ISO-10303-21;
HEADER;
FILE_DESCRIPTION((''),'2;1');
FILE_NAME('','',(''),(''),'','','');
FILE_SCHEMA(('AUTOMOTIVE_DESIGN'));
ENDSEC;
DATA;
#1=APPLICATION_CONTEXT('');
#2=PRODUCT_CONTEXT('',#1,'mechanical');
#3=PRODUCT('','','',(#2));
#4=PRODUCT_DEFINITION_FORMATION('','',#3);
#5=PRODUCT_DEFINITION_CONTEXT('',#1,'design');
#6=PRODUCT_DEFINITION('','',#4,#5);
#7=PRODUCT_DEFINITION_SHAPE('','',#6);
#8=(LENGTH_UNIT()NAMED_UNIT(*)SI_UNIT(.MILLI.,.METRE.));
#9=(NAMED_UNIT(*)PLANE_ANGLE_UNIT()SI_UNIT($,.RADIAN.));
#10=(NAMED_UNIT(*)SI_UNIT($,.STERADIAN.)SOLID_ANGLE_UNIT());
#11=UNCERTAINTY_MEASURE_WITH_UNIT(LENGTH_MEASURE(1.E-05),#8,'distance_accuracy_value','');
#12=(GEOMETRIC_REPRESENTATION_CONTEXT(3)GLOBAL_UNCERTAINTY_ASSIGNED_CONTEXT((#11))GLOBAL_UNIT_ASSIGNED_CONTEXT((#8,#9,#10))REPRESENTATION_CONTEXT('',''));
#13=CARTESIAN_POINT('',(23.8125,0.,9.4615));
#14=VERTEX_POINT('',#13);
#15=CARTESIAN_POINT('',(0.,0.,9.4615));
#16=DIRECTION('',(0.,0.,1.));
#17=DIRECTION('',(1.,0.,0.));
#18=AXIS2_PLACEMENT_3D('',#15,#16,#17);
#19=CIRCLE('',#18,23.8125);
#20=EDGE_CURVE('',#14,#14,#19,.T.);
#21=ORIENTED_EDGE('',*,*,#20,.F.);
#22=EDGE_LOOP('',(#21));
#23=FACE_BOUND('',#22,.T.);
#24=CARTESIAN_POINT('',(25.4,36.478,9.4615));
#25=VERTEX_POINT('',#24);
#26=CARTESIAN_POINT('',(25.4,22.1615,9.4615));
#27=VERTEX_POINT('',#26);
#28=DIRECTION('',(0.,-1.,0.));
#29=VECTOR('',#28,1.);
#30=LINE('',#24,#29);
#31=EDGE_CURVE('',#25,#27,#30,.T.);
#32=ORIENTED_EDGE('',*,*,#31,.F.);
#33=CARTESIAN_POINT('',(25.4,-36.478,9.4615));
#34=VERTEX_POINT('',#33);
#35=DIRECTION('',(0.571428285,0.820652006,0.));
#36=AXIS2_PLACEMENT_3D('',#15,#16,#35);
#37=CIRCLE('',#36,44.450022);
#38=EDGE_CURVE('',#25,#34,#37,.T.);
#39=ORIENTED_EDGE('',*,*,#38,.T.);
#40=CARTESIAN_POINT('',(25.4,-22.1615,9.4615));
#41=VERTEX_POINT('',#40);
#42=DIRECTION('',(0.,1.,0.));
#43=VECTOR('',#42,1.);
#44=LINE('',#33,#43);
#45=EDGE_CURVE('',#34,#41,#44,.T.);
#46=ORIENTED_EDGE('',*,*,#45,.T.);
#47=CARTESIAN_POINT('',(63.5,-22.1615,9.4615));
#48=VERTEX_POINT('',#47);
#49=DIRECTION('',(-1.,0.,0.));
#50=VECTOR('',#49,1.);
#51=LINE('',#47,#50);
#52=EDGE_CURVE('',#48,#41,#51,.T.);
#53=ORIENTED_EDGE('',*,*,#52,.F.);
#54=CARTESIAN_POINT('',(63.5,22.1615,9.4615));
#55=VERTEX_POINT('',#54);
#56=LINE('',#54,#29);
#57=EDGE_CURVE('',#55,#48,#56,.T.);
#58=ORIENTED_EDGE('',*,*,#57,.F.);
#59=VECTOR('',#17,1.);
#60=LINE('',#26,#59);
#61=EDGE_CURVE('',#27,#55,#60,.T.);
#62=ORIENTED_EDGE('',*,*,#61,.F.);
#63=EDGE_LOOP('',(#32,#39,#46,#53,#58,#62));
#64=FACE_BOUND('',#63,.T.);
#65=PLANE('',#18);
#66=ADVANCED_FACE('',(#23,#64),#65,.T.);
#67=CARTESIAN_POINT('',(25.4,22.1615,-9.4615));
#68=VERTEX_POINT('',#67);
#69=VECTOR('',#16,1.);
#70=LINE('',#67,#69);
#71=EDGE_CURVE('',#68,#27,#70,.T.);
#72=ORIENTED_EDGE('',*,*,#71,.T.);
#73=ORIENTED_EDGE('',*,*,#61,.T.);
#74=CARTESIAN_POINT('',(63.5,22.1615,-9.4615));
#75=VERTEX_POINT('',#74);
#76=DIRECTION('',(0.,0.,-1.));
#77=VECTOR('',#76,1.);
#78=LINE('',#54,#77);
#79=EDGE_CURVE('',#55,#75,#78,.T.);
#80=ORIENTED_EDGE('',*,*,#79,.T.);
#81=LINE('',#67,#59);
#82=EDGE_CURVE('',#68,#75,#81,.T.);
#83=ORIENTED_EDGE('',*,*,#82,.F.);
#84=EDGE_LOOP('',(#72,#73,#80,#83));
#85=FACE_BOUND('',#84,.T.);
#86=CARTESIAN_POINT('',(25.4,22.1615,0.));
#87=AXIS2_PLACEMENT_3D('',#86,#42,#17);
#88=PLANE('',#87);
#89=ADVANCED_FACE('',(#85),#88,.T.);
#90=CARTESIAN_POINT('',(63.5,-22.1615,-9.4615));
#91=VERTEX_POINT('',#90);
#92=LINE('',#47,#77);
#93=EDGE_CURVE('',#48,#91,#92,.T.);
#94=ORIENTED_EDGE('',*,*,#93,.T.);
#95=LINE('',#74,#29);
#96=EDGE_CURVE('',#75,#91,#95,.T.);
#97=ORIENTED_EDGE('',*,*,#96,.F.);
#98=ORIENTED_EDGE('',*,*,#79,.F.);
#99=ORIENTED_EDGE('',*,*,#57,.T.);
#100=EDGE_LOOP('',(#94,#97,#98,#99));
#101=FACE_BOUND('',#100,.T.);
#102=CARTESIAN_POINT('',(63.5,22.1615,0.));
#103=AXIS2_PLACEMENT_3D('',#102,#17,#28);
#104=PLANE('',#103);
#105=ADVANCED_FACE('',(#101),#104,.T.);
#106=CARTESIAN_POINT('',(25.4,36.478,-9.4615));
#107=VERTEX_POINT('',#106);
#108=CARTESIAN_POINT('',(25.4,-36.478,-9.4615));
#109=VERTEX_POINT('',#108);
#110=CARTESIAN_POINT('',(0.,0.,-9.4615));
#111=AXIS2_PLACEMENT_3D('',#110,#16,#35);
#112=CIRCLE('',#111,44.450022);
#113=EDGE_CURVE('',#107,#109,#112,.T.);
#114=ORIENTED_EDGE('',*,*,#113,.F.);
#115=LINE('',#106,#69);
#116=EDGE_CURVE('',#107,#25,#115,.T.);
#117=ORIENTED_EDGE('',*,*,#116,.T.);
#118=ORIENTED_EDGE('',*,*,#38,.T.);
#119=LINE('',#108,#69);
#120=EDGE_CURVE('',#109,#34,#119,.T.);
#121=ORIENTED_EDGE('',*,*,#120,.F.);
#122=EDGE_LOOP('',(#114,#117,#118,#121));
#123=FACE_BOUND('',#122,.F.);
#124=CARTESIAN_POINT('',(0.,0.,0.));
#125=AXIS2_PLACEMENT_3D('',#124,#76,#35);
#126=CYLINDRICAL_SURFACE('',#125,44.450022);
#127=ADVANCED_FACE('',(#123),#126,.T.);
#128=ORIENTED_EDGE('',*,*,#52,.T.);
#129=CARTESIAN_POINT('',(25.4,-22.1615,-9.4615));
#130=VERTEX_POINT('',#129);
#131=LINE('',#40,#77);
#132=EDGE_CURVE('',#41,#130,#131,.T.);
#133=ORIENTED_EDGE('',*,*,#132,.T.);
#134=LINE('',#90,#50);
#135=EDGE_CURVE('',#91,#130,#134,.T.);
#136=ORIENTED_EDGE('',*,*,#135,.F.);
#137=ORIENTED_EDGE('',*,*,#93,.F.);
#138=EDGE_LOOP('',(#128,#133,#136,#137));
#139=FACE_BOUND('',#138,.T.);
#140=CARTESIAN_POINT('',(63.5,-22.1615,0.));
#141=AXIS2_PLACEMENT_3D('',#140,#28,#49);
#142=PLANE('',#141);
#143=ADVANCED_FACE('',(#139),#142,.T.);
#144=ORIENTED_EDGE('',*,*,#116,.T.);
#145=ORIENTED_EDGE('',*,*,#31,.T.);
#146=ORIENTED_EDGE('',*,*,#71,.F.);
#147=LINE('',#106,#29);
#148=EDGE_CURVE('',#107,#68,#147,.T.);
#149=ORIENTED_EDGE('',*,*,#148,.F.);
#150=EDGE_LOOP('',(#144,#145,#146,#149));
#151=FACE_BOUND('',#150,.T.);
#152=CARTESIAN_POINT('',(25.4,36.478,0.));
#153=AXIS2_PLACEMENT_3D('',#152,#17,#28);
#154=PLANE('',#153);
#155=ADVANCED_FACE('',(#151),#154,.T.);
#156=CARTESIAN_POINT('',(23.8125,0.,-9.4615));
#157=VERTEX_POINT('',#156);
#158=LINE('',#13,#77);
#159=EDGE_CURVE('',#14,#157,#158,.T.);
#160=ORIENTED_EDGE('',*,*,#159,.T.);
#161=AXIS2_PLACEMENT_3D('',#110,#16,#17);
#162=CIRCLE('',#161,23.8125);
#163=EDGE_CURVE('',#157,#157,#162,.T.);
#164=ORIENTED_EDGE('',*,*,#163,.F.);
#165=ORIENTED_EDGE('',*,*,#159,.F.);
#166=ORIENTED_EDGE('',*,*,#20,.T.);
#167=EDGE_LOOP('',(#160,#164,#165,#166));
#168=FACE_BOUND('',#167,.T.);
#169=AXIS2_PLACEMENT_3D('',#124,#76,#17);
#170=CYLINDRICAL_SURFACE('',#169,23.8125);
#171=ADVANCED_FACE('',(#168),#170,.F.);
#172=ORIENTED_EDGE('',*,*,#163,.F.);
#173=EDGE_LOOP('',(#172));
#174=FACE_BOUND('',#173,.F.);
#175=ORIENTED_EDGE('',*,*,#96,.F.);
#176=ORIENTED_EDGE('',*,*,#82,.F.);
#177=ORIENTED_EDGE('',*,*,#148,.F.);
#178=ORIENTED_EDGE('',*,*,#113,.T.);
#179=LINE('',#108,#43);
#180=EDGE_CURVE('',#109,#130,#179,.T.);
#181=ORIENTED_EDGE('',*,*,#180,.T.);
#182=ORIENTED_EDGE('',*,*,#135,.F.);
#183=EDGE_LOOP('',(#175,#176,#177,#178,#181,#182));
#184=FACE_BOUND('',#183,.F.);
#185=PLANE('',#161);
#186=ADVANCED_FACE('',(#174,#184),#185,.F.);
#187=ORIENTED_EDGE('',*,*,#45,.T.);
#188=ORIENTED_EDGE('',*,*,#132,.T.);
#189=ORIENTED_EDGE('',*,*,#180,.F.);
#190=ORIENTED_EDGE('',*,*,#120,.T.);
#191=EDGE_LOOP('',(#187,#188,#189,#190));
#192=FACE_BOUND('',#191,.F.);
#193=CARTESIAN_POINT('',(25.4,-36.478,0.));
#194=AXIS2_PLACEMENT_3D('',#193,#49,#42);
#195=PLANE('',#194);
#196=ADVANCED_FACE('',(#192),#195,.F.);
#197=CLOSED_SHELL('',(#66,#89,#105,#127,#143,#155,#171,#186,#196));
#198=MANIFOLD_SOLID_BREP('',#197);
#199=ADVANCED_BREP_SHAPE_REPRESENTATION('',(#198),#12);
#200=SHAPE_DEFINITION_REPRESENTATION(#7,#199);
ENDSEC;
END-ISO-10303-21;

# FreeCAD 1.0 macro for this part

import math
import FreeCAD as App
import Part
import Sketcher

V = App.Vector
Q = App.Units.Quantity

doc = App.newDocument("Part")
body = doc.addObject("PartDesign::Body", "Body")

# Sketch on XY plane
sketch1 = body.newObject("Sketcher::SketchObject", "Sketch")
sketch1.AttachmentSupport = (doc.getObject("XY_Plane"), [""])
sketch1.MapMode = "FlatFace"
sketch1.addGeometry([
    Part.LineSegment(V(64, 22, 0), V(25, 22, 0)),  # 0
    Part.LineSegment(V(25, 22, 0), V(25, 36, 0)),  # 1
    Part.ArcOfCircle(Part.Circle(V(0, 0, 0), V(0, 0, 1), 44), math.radians(55), math.radians(305)),  # 2
    Part.LineSegment(V(25, -36, 0), V(25, -22, 0)),  # 3
    Part.LineSegment(V(25, -22, 0), V(64, -22, 0)),  # 4
    Part.LineSegment(V(64, -22, 0), V(64, 22, 0)),  # 5
    Part.Circle(V(0, 0, 0), V(0, 0, 1), 24),  # 6
], False)
sketch1.addConstraint([
    Sketcher.Constraint("Coincident", 0, 2, 1, 1),
    Sketcher.Constraint("Coincident", 1, 2, 2, 1),
    Sketcher.Constraint("Coincident", 2, 2, 3, 1),
    Sketcher.Constraint("Coincident", 3, 2, 4, 1),
    Sketcher.Constraint("Coincident", 4, 2, 5, 1),
    Sketcher.Constraint("Coincident", 5, 2, 0, 1),
    Sketcher.Constraint("Horizontal", 0),
    Sketcher.Constraint("Vertical", 1),
    Sketcher.Constraint("Vertical", 3),
    Sketcher.Constraint("Horizontal", 4),
    Sketcher.Constraint("Vertical", 5),
    Sketcher.Constraint("Coincident", 2, 3, -1, 1),
    Sketcher.Constraint("Coincident", 6, 3, -1, 1),
    Sketcher.Constraint("Symmetric", 0, 2, 3, 2, -1),
    Sketcher.Constraint("Radius", 2, Q("1.75 in")),
    Sketcher.Constraint("Diameter", 6, Q("1.875 in")),
    Sketcher.Constraint("DistanceX", 0, 2, 0, 1, Q("1.5 in")),
    Sketcher.Constraint("DistanceX", -1, 1, 0, 2, Q("1 in")),
    Sketcher.Constraint("DistanceY", 5, 1, 5, 2, Q("1.745 in")),
])
pad1 = body.newObject("PartDesign::Pad", "Pad")
pad1.Profile = sketch1
pad1.Length = Q("0.745 in")
pad1.Midplane = True

doc.recompute()
